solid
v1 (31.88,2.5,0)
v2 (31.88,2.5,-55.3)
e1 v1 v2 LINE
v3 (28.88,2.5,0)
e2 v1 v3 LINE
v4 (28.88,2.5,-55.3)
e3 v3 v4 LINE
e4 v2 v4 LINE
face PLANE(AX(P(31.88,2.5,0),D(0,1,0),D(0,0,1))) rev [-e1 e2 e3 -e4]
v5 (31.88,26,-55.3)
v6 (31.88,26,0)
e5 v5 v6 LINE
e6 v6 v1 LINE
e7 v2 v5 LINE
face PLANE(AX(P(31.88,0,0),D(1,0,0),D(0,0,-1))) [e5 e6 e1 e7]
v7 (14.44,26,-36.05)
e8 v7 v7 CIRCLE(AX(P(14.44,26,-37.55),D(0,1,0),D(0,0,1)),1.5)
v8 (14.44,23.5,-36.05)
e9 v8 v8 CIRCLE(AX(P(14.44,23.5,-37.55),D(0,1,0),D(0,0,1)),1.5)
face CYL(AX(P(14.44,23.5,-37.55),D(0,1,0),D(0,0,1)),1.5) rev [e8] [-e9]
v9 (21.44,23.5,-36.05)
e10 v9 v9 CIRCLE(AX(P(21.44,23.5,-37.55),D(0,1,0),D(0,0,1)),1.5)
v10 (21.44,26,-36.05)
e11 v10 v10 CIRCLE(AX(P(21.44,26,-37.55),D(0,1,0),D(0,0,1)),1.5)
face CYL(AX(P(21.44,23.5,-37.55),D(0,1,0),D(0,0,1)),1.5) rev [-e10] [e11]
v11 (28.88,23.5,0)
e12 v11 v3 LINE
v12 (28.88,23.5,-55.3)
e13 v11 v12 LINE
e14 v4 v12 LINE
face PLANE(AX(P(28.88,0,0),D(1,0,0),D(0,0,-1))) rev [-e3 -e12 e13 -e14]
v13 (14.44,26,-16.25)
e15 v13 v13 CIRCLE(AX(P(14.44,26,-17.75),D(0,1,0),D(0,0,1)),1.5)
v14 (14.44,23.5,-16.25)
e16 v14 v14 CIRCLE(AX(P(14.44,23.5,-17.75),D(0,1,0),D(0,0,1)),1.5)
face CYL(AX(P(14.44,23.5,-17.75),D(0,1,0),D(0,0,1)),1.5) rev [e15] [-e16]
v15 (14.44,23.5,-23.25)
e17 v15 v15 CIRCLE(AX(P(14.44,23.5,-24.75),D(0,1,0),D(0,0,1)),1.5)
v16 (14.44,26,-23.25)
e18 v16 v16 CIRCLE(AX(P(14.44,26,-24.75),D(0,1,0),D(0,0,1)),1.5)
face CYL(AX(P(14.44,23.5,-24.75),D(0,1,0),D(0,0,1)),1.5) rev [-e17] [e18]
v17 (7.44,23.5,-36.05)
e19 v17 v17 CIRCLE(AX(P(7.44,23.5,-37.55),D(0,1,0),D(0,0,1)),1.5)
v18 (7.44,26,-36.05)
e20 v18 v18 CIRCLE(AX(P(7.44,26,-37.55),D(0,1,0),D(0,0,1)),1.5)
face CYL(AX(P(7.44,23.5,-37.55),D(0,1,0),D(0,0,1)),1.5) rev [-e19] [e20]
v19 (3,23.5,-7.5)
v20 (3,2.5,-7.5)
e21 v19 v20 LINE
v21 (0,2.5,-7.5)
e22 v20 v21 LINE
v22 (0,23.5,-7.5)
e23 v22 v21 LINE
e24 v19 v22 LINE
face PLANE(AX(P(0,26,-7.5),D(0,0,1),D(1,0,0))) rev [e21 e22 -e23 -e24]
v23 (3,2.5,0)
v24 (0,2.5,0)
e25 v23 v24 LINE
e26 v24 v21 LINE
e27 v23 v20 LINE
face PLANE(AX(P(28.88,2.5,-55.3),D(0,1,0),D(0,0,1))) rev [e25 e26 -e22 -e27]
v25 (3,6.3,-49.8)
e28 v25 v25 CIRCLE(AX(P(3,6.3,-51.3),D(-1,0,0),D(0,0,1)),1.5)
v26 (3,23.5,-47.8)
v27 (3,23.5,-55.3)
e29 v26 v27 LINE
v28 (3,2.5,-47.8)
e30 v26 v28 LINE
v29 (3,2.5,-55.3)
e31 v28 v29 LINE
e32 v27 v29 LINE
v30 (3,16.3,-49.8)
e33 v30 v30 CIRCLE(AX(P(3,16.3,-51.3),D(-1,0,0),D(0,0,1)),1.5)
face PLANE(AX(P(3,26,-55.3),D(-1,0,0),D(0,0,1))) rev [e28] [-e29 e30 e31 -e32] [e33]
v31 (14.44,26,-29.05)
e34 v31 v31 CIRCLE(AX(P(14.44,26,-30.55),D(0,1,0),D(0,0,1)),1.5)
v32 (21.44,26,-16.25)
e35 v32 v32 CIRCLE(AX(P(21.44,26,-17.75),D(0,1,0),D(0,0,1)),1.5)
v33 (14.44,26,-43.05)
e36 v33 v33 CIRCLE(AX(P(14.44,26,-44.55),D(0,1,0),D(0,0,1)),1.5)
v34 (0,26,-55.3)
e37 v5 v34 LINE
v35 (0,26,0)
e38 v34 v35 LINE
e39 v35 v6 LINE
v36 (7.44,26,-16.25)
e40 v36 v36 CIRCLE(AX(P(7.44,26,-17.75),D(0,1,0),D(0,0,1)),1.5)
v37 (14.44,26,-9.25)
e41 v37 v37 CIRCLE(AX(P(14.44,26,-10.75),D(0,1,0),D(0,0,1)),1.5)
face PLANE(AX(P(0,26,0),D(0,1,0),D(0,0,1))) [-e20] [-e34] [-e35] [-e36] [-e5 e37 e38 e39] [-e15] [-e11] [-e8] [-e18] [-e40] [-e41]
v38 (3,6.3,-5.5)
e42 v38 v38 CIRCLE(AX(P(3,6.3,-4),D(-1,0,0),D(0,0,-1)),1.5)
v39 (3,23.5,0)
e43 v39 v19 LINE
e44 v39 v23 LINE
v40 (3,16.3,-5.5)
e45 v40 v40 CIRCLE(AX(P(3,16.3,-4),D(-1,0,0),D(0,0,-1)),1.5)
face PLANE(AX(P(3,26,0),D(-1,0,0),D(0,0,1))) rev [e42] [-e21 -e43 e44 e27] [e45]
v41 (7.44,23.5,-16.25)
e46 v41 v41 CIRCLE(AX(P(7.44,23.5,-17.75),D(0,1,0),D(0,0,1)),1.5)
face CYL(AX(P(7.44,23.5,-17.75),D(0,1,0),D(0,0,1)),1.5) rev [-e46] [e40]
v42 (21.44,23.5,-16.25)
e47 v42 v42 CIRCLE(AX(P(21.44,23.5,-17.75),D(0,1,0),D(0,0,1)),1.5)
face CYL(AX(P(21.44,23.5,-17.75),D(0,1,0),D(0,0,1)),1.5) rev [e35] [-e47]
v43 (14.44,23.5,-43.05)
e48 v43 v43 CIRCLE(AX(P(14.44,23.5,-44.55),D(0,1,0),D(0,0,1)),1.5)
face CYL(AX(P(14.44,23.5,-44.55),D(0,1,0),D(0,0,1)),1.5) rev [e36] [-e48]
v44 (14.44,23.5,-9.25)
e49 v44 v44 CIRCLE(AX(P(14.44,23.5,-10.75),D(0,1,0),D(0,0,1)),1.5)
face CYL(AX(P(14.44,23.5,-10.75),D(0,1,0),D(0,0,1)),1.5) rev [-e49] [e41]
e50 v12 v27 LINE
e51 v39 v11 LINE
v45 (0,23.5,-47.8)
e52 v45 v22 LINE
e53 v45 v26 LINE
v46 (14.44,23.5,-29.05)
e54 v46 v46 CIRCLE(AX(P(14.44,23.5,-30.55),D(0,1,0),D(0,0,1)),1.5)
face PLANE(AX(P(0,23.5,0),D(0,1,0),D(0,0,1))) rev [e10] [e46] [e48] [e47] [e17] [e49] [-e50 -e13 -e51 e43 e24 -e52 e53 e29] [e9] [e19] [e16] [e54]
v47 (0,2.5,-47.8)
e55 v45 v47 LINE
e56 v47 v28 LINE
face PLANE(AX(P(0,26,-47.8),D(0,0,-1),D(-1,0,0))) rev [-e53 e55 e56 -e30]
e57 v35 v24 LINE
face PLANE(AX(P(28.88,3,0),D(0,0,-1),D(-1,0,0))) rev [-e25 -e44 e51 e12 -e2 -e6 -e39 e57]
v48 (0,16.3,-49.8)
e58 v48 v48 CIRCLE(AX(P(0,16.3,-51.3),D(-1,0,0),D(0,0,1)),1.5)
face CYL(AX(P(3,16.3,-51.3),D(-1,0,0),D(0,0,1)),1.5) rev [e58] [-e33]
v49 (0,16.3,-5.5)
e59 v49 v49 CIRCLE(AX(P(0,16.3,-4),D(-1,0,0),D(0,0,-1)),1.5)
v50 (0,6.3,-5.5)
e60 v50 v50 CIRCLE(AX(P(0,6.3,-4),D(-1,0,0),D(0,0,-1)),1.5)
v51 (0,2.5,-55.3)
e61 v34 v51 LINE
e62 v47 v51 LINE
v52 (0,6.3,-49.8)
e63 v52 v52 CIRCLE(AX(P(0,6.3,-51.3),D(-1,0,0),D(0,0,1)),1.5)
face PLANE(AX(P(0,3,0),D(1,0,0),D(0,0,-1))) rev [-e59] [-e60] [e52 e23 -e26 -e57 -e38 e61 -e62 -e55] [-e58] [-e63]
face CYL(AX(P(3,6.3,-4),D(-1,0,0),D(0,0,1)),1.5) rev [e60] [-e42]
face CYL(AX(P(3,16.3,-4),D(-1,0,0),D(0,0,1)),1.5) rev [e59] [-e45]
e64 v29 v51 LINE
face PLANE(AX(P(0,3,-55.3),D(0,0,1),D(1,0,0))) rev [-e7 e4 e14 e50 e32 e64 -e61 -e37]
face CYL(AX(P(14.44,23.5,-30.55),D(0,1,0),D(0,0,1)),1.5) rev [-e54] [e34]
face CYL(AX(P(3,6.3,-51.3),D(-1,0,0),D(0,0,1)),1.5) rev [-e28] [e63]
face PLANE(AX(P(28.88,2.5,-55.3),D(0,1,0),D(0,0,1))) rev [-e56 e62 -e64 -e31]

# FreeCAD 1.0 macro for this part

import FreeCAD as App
import Part
import Sketcher
from FreeCAD import Vector


def add_polygon(sketch, points):
    """Adds a closed chain of lines whose ends are joined by coincident constraints."""
    first, n = sketch.GeometryCount, len(points)
    for a, b in zip(points, points[1:] + points[:1]):
        sketch.addGeometry(Part.LineSegment(App.Vector(*a, 0), App.Vector(*b, 0)), False)
    for i in range(n):
        sketch.addConstraint(Sketcher.Constraint("Coincident", first + i, 2, first + (i + 1) % n, 1))

doc = App.newDocument("Part")
body = doc.addObject("PartDesign::Body", "Body")

# Sketch on XZ plane
sketch1 = body.newObject("Sketcher::SketchObject", "Sketch")
sketch1.AttachmentSupport = (doc.getObject("XZ_Plane"), [""])
sketch1.MapMode = "FlatFace"
add_polygon(sketch1, [(0, -55.3), (0, 0), (28.9, 0), (28.9, -55.3)])  # lines 0-3
sketch1.addGeometry(Part.Circle(Vector(7.4, -17.8, 0), Vector(0, 0, 1), 1.5), False)  # 4
sketch1.addGeometry(Part.Circle(Vector(14.4, -10.8, 0), Vector(0, 0, 1), 1.5), False)  # 5
sketch1.addGeometry(Part.Circle(Vector(14.4, -17.8, 0), Vector(0, 0, 1), 1.5), False)  # 6
sketch1.addGeometry(Part.Circle(Vector(21.4, -17.8, 0), Vector(0, 0, 1), 1.5), False)  # 7
sketch1.addGeometry(Part.Circle(Vector(14.4, -24.8, 0), Vector(0, 0, 1), 1.5), False)  # 8
sketch1.addGeometry(Part.Circle(Vector(7.4, -37.5, 0), Vector(0, 0, 1), 1.5), False)  # 9
sketch1.addGeometry(Part.Circle(Vector(14.4, -30.6, 0), Vector(0, 0, 1), 1.5), False)  # 10
sketch1.addGeometry(Part.Circle(Vector(14.4, -37.5, 0), Vector(0, 0, 1), 1.5), False)  # 11
sketch1.addGeometry(Part.Circle(Vector(14.4, -44.5, 0), Vector(0, 0, 1), 1.5), False)  # 12
sketch1.addGeometry(Part.Circle(Vector(21.4, -37.5, 0), Vector(0, 0, 1), 1.5), False)  # 13
sketch1.addConstraint([
    Sketcher.Constraint("Vertical", 0),
    Sketcher.Constraint("Horizontal", 1),
    Sketcher.Constraint("Vertical", 2),
    Sketcher.Constraint("Horizontal", 3),
    Sketcher.Constraint("Coincident", 0, 2, -1, 1),
    Sketcher.Constraint("Equal", 4, 5),
    Sketcher.Constraint("Equal", 5, 6),
    Sketcher.Constraint("Equal", 6, 7),
    Sketcher.Constraint("Equal", 7, 8),
    Sketcher.Constraint("Equal", 8, 9),
    Sketcher.Constraint("Equal", 9, 10),
    Sketcher.Constraint("Equal", 10, 11),
    Sketcher.Constraint("Equal", 11, 12),
    Sketcher.Constraint("Equal", 12, 13),
    Sketcher.Constraint("Horizontal", 4, 3, 6, 3),
    Sketcher.Constraint("Horizontal", 6, 3, 7, 3),
    Sketcher.Constraint("Horizontal", 9, 3, 11, 3),
    Sketcher.Constraint("Horizontal", 11, 3, 13, 3),
    Sketcher.Constraint("Vertical", 5, 3, 6, 3),
    Sketcher.Constraint("Vertical", 6, 3, 8, 3),
    Sketcher.Constraint("Vertical", 4, 3, 9, 3),
    Sketcher.Constraint("Vertical", 8, 3, 10, 3),
    Sketcher.Constraint("Vertical", 10, 3, 11, 3),
    Sketcher.Constraint("Vertical", 11, 3, 12, 3),
    Sketcher.Constraint("Vertical", 7, 3, 13, 3),
    Sketcher.Constraint("Diameter", 4, 3.0),
    Sketcher.Constraint("DistanceY", 0, 1, 0, 2, 55.3),
    Sketcher.Constraint("DistanceX", 4, 3, 5, 3, 7.0),
    Sketcher.Constraint("DistanceY", 4, 3, 5, 3, 7.0),
    Sketcher.Constraint("DistanceX", 6, 3, 7, 3, 7.0),
    Sketcher.Constraint("DistanceY", 8, 3, 6, 3, 7.0),
    Sketcher.Constraint("DistanceY", 9, 3, 10, 3, 7.0),
    Sketcher.Constraint("DistanceY", 12, 3, 11, 3, 7.0),
    Sketcher.Constraint("DistanceX", 1, 1, 1, 2, 28.88),
    Sketcher.Constraint("DistanceY", 9, 3, 8, 3, 12.8),
    Sketcher.Constraint("DistanceX", -1, 1, 4, 3, 7.44),
    Sketcher.Constraint("DistanceY", 4, 3, -1, 1, 17.75),
])
pad1 = body.newObject("PartDesign::Pad", "Pad")
pad1.Profile = sketch1
pad1.Length = 3
pad1.Reversed = True

# Sketch on XZ plane
sketch2 = body.newObject("Sketcher::SketchObject", "Sketch001")
sketch2.AttachmentSupport = (doc.getObject("XZ_Plane"), [""])
sketch2.MapMode = "FlatFace"
sketch2.AttachmentOffset = App.Placement(Vector(0, 0, -3), App.Rotation())
add_polygon(sketch2, [(0, -55), (0, 0), (29, 0), (29, -55)])  # lines 0-3
sketch2.addConstraint([
    Sketcher.Constraint("Vertical", 0),
    Sketcher.Constraint("Horizontal", 1),
    Sketcher.Constraint("Vertical", 2),
    Sketcher.Constraint("Horizontal", 3),
    Sketcher.Constraint("Coincident", 0, 2, -1, 1),
    Sketcher.Constraint("DistanceY", 0, 1, 0, 2, 55.3),
    Sketcher.Constraint("DistanceX", 1, 1, 1, 2, 28.88),
])
pocket1 = body.newObject("PartDesign::Pocket", "Pocket")
pocket1.Profile = sketch2
pocket1.Length = 0.5
pocket1.Reversed = True

# Sketch on XZ plane
sketch3 = body.newObject("Sketcher::SketchObject", "Sketch002")
sketch3.AttachmentSupport = (doc.getObject("XZ_Plane"), [""])
sketch3.MapMode = "FlatFace"
sketch3.AttachmentOffset = App.Placement(Vector(0, 0, -2.5), App.Rotation())
add_polygon(sketch3, [(0, -55.3), (0, -47.8), (3, -47.8), (3, -55.3)])  # lines 0-3
add_polygon(sketch3, [(0, -7.5), (0, 0), (3, 0), (3, -7.5)])  # lines 4-7
sketch3.addConstraint([
    Sketcher.Constraint("Vertical", 0),
    Sketcher.Constraint("Horizontal", 1),
    Sketcher.Constraint("Vertical", 2),
    Sketcher.Constraint("Horizontal", 3),
    Sketcher.Constraint("Vertical", 4),
    Sketcher.Constraint("Horizontal", 5),
    Sketcher.Constraint("Vertical", 6),
    Sketcher.Constraint("Horizontal", 7),
    Sketcher.Constraint("Coincident", 4, 2, -1, 1),
    Sketcher.Constraint("PointOnObject", 0, 2, -2),
    Sketcher.Constraint("Vertical", 2, 2, 5, 2),
    Sketcher.Constraint("Equal", 2, 4),
    Sketcher.Constraint("DistanceX", 1, 1, 1, 2, 3.0),
    Sketcher.Constraint("DistanceY", 0, 1, 0, 2, 7.5),
    Sketcher.Constraint("DistanceY", 0, 2, -1, 1, 47.8),
])
pad2 = body.newObject("PartDesign::Pad", "Pad001")
pad2.Profile = sketch3
pad2.Length = 23.5
pad2.Reversed = True

# Sketch on XZ plane
sketch4 = body.newObject("Sketcher::SketchObject", "Sketch003")
sketch4.AttachmentSupport = (doc.getObject("XZ_Plane"), [""])
sketch4.MapMode = "FlatFace"
sketch4.AttachmentOffset = App.Placement(Vector(0, 0, -23.5), App.Rotation())
add_polygon(sketch4, [(0, -55.3), (0, 0), (28.9, 0), (28.9, -55.3)])  # lines 0-3
sketch4.addGeometry(Part.Circle(Vector(7.4, -17.8, 0), Vector(0, 0, 1), 1.5), False)  # 4
sketch4.addGeometry(Part.Circle(Vector(14.4, -10.8, 0), Vector(0, 0, 1), 1.5), False)  # 5
sketch4.addGeometry(Part.Circle(Vector(14.4, -17.8, 0), Vector(0, 0, 1), 1.5), False)  # 6
sketch4.addGeometry(Part.Circle(Vector(21.4, -17.8, 0), Vector(0, 0, 1), 1.5), False)  # 7
sketch4.addGeometry(Part.Circle(Vector(14.4, -24.8, 0), Vector(0, 0, 1), 1.5), False)  # 8
sketch4.addGeometry(Part.Circle(Vector(7.4, -37.5, 0), Vector(0, 0, 1), 1.5), False)  # 9
sketch4.addGeometry(Part.Circle(Vector(14.4, -30.6, 0), Vector(0, 0, 1), 1.5), False)  # 10
sketch4.addGeometry(Part.Circle(Vector(14.4, -37.5, 0), Vector(0, 0, 1), 1.5), False)  # 11
sketch4.addGeometry(Part.Circle(Vector(14.4, -44.5, 0), Vector(0, 0, 1), 1.5), False)  # 12
sketch4.addGeometry(Part.Circle(Vector(21.4, -37.5, 0), Vector(0, 0, 1), 1.5), False)  # 13
sketch4.addConstraint([
    Sketcher.Constraint("Vertical", 0),
    Sketcher.Constraint("Horizontal", 1),
    Sketcher.Constraint("Vertical", 2),
    Sketcher.Constraint("Horizontal", 3),
    Sketcher.Constraint("Coincident", 0, 2, -1, 1),
    Sketcher.Constraint("Equal", 4, 5),
    Sketcher.Constraint("Equal", 5, 6),
    Sketcher.Constraint("Equal", 6, 7),
    Sketcher.Constraint("Equal", 7, 8),
    Sketcher.Constraint("Equal", 8, 9),
    Sketcher.Constraint("Equal", 9, 10),
    Sketcher.Constraint("Equal", 10, 11),
    Sketcher.Constraint("Equal", 11, 12),
    Sketcher.Constraint("Equal", 12, 13),
    Sketcher.Constraint("Horizontal", 4, 3, 6, 3),
    Sketcher.Constraint("Horizontal", 6, 3, 7, 3),
    Sketcher.Constraint("Horizontal", 9, 3, 11, 3),
    Sketcher.Constraint("Horizontal", 11, 3, 13, 3),
    Sketcher.Constraint("Vertical", 5, 3, 6, 3),
    Sketcher.Constraint("Vertical", 6, 3, 8, 3),
    Sketcher.Constraint("Vertical", 4, 3, 9, 3),
    Sketcher.Constraint("Vertical", 8, 3, 10, 3),
    Sketcher.Constraint("Vertical", 10, 3, 11, 3),
    Sketcher.Constraint("Vertical", 11, 3, 12, 3),
    Sketcher.Constraint("Vertical", 7, 3, 13, 3),
    Sketcher.Constraint("Diameter", 4, 3.0),
    Sketcher.Constraint("DistanceY", 0, 1, 0, 2, 55.3),
    Sketcher.Constraint("DistanceX", 4, 3, 5, 3, 7.0),
    Sketcher.Constraint("DistanceY", 4, 3, 5, 3, 7.0),
    Sketcher.Constraint("DistanceX", 6, 3, 7, 3, 7.0),
    Sketcher.Constraint("DistanceY", 8, 3, 6, 3, 7.0),
    Sketcher.Constraint("DistanceY", 9, 3, 10, 3, 7.0),
    Sketcher.Constraint("DistanceY", 12, 3, 11, 3, 7.0),
    Sketcher.Constraint("DistanceX", 1, 1, 1, 2, 28.88),
    Sketcher.Constraint("DistanceY", 9, 3, 8, 3, 12.8),
    Sketcher.Constraint("DistanceX", -1, 1, 4, 3, 7.44),
    Sketcher.Constraint("DistanceY", 4, 3, -1, 1, 17.75),
])
pad3 = body.newObject("PartDesign::Pad", "Pad002")
pad3.Profile = sketch4
pad3.Length = 2.5
pad3.Reversed = True

# Sketch on YZ plane
sketch5 = body.newObject("Sketcher::SketchObject", "Sketch004")
sketch5.AttachmentSupport = (doc.getObject("YZ_Plane"), [""])
sketch5.MapMode = "FlatFace"
sketch5.addGeometry([
    Part.Circle(Vector(6.3, -51.3, 0), Vector(0, 0, 1), 1.5),
    Part.Circle(Vector(16.3, -51.3, 0), Vector(0, 0, 1), 1.5),
    Part.Circle(Vector(16.3, -4, 0), Vector(0, 0, 1), 1.5),
    Part.Circle(Vector(6.3, -4, 0), Vector(0, 0, 1), 1.5),
], False)
sketch5.addConstraint([
    Sketcher.Constraint("Equal", 0, 1),
    Sketcher.Constraint("Equal", 1, 2),
    Sketcher.Constraint("Equal", 2, 3),
    Sketcher.Constraint("Horizontal", 0, 3, 1, 3),
    Sketcher.Constraint("Horizontal", 2, 3, 3, 3),
    Sketcher.Constraint("Vertical", 1, 3, 2, 3),
    Sketcher.Constraint("Vertical", 0, 3, 3, 3),
    Sketcher.Constraint("Diameter", 0, 3.0),
    Sketcher.Constraint("DistanceY", 2, 3, -1, 1, 4.0),
    Sketcher.Constraint("DistanceX", 0, 3, 1, 3, 10.0),
    Sketcher.Constraint("DistanceX", -1, 1, 0, 3, 6.3),
    Sketcher.Constraint("DistanceY", 0, 3, -1, 1, 51.3),
])
pocket2 = body.newObject("PartDesign::Pocket", "Pocket001")
pocket2.Profile = sketch5
pocket2.Length = 3
pocket2.Reversed = True

# Sketch on YZ plane
sketch6 = body.newObject("Sketcher::SketchObject", "Sketch005")
sketch6.AttachmentSupport = (doc.getObject("YZ_Plane"), [""])
sketch6.MapMode = "FlatFace"
add_polygon(sketch6, [(2.5, -55.3), (0, -55.3), (0, 0), (2.5, 0)])  # lines 0-3
sketch6.addConstraint([
    Sketcher.Constraint("Horizontal", 0),
    Sketcher.Constraint("Vertical", 1),
    Sketcher.Constraint("Horizontal", 2),
    Sketcher.Constraint("Vertical", 3),
    Sketcher.Constraint("Coincident", 1, 2, -1, 1),
    Sketcher.Constraint("DistanceX", 0, 2, 0, 1, 2.5),
    Sketcher.Constraint("DistanceY", 1, 1, 1, 2, 55.3),
])
pocket3 = body.newObject("PartDesign::Pocket", "Pocket002")
pocket3.Profile = sketch6
pocket3.Type = "ThroughAll"
pocket3.Reversed = True

# Sketch on YZ plane
sketch7 = body.newObject("Sketcher::SketchObject", "Sketch006")
sketch7.AttachmentSupport = (doc.getObject("YZ_Plane"), [""])
sketch7.MapMode = "FlatFace"
sketch7.AttachmentOffset = App.Placement(Vector(0, 0, 28.88), App.Rotation())
add_polygon(sketch7, [(26, 0), (2, 0), (2, -55), (26, -55)])  # lines 0-3
sketch7.addConstraint([
    Sketcher.Constraint("Horizontal", 0),
    Sketcher.Constraint("Vertical", 1),
    Sketcher.Constraint("Horizontal", 2),
    Sketcher.Constraint("Vertical", 3),
    Sketcher.Constraint("PointOnObject", 0, 2, -1),
    Sketcher.Constraint("DistanceX", 0, 2, 0, 1, 23.5),
    Sketcher.Constraint("DistanceY", 1, 2, 1, 1, 55.3),
    Sketcher.Constraint("DistanceX", -1, 1, 2, 2, 26.0),
])
pad4 = body.newObject("PartDesign::Pad", "Pad003")
pad4.Profile = sketch7
pad4.Length = 3

doc.recompute()
